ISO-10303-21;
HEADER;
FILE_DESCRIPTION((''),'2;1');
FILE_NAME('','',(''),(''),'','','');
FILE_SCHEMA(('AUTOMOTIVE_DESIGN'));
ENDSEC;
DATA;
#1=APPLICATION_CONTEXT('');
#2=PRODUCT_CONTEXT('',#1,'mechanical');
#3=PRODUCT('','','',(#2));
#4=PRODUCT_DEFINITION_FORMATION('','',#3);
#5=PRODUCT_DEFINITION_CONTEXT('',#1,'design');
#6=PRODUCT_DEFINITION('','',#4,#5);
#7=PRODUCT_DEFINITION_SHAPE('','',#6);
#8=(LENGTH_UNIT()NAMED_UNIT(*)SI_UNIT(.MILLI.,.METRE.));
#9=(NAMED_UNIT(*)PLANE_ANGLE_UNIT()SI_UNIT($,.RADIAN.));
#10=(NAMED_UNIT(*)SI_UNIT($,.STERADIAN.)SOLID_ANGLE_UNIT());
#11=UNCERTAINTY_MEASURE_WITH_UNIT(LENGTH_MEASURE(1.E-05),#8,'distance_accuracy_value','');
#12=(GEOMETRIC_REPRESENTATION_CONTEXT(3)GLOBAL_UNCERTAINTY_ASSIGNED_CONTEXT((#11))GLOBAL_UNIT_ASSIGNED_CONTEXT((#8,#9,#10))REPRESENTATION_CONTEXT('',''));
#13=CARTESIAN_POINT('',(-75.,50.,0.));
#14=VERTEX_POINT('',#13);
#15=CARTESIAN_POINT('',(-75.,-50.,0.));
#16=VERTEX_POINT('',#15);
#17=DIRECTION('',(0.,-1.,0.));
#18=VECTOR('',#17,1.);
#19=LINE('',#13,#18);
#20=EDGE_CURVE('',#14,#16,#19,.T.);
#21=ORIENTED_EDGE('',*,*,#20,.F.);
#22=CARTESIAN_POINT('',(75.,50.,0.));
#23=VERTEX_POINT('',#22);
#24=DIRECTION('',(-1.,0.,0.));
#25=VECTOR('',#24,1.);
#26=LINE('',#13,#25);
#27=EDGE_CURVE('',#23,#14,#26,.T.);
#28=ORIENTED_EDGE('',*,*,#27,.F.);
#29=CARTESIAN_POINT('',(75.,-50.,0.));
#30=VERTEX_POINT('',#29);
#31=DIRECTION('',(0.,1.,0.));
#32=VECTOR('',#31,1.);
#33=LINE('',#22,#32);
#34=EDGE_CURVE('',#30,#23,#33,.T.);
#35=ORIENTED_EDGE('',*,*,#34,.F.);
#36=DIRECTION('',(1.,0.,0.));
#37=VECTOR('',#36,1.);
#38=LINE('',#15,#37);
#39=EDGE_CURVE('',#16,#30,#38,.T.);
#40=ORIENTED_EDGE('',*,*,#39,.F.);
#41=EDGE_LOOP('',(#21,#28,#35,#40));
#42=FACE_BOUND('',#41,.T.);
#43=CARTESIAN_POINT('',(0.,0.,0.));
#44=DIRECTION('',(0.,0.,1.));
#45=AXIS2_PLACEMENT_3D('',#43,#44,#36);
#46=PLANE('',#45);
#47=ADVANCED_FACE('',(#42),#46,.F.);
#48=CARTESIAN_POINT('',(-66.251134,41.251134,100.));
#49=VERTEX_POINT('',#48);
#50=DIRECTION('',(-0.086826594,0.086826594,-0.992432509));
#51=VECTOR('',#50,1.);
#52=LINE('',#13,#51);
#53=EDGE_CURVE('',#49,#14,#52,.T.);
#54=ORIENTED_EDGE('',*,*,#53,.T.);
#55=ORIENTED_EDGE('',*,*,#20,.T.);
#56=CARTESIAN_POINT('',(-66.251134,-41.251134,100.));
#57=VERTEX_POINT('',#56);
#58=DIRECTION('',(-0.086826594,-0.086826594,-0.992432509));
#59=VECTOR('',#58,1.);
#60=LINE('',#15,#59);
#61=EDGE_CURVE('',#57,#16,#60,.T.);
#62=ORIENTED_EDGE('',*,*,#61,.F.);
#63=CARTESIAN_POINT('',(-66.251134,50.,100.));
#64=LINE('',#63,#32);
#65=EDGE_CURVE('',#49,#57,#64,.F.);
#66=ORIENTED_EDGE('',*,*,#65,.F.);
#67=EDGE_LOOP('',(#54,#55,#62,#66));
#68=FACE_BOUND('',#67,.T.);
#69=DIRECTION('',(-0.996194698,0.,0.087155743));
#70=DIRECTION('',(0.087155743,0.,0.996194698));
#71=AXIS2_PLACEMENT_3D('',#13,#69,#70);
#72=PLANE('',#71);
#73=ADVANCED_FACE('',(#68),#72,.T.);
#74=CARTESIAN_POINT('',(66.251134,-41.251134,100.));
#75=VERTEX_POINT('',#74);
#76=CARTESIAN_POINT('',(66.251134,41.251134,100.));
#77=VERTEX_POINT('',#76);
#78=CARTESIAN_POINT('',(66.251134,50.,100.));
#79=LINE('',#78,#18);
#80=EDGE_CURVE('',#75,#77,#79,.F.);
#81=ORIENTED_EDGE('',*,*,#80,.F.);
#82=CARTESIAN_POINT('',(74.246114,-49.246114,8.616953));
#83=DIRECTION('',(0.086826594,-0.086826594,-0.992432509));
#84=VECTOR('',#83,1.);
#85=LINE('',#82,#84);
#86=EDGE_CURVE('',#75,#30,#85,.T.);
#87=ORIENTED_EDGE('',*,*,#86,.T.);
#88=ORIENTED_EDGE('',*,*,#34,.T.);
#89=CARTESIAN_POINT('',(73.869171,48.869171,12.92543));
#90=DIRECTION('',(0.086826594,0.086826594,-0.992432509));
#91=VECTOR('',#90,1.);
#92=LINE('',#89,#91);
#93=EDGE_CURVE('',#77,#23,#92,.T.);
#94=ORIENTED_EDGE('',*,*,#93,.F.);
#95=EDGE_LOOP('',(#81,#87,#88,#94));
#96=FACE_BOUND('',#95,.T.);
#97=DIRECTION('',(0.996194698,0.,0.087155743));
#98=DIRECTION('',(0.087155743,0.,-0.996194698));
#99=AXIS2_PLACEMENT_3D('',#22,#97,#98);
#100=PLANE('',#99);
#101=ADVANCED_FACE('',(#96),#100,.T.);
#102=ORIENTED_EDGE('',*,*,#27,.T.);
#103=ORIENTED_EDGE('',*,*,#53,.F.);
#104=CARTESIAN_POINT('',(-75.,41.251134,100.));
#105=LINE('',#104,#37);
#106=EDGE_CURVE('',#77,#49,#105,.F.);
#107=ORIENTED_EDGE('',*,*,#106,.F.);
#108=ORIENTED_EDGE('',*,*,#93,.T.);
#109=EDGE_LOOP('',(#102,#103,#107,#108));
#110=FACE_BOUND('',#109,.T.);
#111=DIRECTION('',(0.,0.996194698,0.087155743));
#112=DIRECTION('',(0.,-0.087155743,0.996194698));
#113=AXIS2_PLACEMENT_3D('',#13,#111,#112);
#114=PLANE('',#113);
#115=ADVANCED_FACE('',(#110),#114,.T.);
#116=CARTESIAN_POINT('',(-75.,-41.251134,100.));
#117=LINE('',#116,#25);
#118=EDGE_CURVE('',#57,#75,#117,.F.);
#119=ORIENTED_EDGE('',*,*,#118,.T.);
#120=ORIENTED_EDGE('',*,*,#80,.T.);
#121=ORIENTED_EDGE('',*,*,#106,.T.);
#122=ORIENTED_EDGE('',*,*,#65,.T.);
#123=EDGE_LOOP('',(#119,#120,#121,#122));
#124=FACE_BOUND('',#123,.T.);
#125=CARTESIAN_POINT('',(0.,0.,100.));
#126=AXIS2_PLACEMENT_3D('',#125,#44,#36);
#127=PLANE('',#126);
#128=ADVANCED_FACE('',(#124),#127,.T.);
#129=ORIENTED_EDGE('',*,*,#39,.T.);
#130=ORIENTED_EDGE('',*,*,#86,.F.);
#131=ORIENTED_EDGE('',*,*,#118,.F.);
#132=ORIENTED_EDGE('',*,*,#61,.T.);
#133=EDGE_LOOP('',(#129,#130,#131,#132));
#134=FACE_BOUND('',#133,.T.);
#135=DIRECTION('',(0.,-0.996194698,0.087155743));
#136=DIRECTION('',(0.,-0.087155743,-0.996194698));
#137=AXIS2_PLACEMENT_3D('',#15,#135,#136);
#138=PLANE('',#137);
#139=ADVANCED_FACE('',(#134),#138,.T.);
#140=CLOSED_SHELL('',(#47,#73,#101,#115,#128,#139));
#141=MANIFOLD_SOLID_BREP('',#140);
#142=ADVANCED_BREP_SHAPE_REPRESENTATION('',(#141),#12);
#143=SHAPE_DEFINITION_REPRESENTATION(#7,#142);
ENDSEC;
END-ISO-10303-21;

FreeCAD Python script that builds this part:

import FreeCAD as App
import Part
import Sketcher
from FreeCAD import Vector


def add_polygon(sketch, points):
    """Adds a closed chain of lines whose ends are joined by coincident constraints."""
    first, n = sketch.GeometryCount, len(points)
    for a, b in zip(points, points[1:] + points[:1]):
        sketch.addGeometry(Part.LineSegment(App.Vector(*a, 0), App.Vector(*b, 0)), False)
    for i in range(n):
        sketch.addConstraint(Sketcher.Constraint("Coincident", first + i, 2, first + (i + 1) % n, 1))

doc = App.newDocument("Part")
body = doc.addObject("PartDesign::Body", "Body")

# Sketch on XY plane
sketch1 = body.newObject("Sketcher::SketchObject", "Sketch")
sketch1.AttachmentSupport = (doc.getObject("XY_Plane"), [""])
sketch1.MapMode = "FlatFace"
add_polygon(sketch1, [(-75, 50), (-75, -50), (75, -50), (75, 50)])  # lines 0-3
sketch1.addConstraint([
    Sketcher.Constraint("Vertical", 0),
    Sketcher.Constraint("Horizontal", 1),
    Sketcher.Constraint("Vertical", 2),
    Sketcher.Constraint("Horizontal", 3),
    Sketcher.Constraint("Symmetric", 0, 2, 2, 2, -1, 1),
    Sketcher.Constraint("DistanceX", 1, 1, 1, 2, 150.0),
    Sketcher.Constraint("DistanceY", 0, 2, 0, 1, 100.0),
])
pad1 = body.newObject("PartDesign::Pad", "Pad")
pad1.Profile = sketch1
pad1.Length = 100
pad1.TaperAngle = -5

doc.recompute()
